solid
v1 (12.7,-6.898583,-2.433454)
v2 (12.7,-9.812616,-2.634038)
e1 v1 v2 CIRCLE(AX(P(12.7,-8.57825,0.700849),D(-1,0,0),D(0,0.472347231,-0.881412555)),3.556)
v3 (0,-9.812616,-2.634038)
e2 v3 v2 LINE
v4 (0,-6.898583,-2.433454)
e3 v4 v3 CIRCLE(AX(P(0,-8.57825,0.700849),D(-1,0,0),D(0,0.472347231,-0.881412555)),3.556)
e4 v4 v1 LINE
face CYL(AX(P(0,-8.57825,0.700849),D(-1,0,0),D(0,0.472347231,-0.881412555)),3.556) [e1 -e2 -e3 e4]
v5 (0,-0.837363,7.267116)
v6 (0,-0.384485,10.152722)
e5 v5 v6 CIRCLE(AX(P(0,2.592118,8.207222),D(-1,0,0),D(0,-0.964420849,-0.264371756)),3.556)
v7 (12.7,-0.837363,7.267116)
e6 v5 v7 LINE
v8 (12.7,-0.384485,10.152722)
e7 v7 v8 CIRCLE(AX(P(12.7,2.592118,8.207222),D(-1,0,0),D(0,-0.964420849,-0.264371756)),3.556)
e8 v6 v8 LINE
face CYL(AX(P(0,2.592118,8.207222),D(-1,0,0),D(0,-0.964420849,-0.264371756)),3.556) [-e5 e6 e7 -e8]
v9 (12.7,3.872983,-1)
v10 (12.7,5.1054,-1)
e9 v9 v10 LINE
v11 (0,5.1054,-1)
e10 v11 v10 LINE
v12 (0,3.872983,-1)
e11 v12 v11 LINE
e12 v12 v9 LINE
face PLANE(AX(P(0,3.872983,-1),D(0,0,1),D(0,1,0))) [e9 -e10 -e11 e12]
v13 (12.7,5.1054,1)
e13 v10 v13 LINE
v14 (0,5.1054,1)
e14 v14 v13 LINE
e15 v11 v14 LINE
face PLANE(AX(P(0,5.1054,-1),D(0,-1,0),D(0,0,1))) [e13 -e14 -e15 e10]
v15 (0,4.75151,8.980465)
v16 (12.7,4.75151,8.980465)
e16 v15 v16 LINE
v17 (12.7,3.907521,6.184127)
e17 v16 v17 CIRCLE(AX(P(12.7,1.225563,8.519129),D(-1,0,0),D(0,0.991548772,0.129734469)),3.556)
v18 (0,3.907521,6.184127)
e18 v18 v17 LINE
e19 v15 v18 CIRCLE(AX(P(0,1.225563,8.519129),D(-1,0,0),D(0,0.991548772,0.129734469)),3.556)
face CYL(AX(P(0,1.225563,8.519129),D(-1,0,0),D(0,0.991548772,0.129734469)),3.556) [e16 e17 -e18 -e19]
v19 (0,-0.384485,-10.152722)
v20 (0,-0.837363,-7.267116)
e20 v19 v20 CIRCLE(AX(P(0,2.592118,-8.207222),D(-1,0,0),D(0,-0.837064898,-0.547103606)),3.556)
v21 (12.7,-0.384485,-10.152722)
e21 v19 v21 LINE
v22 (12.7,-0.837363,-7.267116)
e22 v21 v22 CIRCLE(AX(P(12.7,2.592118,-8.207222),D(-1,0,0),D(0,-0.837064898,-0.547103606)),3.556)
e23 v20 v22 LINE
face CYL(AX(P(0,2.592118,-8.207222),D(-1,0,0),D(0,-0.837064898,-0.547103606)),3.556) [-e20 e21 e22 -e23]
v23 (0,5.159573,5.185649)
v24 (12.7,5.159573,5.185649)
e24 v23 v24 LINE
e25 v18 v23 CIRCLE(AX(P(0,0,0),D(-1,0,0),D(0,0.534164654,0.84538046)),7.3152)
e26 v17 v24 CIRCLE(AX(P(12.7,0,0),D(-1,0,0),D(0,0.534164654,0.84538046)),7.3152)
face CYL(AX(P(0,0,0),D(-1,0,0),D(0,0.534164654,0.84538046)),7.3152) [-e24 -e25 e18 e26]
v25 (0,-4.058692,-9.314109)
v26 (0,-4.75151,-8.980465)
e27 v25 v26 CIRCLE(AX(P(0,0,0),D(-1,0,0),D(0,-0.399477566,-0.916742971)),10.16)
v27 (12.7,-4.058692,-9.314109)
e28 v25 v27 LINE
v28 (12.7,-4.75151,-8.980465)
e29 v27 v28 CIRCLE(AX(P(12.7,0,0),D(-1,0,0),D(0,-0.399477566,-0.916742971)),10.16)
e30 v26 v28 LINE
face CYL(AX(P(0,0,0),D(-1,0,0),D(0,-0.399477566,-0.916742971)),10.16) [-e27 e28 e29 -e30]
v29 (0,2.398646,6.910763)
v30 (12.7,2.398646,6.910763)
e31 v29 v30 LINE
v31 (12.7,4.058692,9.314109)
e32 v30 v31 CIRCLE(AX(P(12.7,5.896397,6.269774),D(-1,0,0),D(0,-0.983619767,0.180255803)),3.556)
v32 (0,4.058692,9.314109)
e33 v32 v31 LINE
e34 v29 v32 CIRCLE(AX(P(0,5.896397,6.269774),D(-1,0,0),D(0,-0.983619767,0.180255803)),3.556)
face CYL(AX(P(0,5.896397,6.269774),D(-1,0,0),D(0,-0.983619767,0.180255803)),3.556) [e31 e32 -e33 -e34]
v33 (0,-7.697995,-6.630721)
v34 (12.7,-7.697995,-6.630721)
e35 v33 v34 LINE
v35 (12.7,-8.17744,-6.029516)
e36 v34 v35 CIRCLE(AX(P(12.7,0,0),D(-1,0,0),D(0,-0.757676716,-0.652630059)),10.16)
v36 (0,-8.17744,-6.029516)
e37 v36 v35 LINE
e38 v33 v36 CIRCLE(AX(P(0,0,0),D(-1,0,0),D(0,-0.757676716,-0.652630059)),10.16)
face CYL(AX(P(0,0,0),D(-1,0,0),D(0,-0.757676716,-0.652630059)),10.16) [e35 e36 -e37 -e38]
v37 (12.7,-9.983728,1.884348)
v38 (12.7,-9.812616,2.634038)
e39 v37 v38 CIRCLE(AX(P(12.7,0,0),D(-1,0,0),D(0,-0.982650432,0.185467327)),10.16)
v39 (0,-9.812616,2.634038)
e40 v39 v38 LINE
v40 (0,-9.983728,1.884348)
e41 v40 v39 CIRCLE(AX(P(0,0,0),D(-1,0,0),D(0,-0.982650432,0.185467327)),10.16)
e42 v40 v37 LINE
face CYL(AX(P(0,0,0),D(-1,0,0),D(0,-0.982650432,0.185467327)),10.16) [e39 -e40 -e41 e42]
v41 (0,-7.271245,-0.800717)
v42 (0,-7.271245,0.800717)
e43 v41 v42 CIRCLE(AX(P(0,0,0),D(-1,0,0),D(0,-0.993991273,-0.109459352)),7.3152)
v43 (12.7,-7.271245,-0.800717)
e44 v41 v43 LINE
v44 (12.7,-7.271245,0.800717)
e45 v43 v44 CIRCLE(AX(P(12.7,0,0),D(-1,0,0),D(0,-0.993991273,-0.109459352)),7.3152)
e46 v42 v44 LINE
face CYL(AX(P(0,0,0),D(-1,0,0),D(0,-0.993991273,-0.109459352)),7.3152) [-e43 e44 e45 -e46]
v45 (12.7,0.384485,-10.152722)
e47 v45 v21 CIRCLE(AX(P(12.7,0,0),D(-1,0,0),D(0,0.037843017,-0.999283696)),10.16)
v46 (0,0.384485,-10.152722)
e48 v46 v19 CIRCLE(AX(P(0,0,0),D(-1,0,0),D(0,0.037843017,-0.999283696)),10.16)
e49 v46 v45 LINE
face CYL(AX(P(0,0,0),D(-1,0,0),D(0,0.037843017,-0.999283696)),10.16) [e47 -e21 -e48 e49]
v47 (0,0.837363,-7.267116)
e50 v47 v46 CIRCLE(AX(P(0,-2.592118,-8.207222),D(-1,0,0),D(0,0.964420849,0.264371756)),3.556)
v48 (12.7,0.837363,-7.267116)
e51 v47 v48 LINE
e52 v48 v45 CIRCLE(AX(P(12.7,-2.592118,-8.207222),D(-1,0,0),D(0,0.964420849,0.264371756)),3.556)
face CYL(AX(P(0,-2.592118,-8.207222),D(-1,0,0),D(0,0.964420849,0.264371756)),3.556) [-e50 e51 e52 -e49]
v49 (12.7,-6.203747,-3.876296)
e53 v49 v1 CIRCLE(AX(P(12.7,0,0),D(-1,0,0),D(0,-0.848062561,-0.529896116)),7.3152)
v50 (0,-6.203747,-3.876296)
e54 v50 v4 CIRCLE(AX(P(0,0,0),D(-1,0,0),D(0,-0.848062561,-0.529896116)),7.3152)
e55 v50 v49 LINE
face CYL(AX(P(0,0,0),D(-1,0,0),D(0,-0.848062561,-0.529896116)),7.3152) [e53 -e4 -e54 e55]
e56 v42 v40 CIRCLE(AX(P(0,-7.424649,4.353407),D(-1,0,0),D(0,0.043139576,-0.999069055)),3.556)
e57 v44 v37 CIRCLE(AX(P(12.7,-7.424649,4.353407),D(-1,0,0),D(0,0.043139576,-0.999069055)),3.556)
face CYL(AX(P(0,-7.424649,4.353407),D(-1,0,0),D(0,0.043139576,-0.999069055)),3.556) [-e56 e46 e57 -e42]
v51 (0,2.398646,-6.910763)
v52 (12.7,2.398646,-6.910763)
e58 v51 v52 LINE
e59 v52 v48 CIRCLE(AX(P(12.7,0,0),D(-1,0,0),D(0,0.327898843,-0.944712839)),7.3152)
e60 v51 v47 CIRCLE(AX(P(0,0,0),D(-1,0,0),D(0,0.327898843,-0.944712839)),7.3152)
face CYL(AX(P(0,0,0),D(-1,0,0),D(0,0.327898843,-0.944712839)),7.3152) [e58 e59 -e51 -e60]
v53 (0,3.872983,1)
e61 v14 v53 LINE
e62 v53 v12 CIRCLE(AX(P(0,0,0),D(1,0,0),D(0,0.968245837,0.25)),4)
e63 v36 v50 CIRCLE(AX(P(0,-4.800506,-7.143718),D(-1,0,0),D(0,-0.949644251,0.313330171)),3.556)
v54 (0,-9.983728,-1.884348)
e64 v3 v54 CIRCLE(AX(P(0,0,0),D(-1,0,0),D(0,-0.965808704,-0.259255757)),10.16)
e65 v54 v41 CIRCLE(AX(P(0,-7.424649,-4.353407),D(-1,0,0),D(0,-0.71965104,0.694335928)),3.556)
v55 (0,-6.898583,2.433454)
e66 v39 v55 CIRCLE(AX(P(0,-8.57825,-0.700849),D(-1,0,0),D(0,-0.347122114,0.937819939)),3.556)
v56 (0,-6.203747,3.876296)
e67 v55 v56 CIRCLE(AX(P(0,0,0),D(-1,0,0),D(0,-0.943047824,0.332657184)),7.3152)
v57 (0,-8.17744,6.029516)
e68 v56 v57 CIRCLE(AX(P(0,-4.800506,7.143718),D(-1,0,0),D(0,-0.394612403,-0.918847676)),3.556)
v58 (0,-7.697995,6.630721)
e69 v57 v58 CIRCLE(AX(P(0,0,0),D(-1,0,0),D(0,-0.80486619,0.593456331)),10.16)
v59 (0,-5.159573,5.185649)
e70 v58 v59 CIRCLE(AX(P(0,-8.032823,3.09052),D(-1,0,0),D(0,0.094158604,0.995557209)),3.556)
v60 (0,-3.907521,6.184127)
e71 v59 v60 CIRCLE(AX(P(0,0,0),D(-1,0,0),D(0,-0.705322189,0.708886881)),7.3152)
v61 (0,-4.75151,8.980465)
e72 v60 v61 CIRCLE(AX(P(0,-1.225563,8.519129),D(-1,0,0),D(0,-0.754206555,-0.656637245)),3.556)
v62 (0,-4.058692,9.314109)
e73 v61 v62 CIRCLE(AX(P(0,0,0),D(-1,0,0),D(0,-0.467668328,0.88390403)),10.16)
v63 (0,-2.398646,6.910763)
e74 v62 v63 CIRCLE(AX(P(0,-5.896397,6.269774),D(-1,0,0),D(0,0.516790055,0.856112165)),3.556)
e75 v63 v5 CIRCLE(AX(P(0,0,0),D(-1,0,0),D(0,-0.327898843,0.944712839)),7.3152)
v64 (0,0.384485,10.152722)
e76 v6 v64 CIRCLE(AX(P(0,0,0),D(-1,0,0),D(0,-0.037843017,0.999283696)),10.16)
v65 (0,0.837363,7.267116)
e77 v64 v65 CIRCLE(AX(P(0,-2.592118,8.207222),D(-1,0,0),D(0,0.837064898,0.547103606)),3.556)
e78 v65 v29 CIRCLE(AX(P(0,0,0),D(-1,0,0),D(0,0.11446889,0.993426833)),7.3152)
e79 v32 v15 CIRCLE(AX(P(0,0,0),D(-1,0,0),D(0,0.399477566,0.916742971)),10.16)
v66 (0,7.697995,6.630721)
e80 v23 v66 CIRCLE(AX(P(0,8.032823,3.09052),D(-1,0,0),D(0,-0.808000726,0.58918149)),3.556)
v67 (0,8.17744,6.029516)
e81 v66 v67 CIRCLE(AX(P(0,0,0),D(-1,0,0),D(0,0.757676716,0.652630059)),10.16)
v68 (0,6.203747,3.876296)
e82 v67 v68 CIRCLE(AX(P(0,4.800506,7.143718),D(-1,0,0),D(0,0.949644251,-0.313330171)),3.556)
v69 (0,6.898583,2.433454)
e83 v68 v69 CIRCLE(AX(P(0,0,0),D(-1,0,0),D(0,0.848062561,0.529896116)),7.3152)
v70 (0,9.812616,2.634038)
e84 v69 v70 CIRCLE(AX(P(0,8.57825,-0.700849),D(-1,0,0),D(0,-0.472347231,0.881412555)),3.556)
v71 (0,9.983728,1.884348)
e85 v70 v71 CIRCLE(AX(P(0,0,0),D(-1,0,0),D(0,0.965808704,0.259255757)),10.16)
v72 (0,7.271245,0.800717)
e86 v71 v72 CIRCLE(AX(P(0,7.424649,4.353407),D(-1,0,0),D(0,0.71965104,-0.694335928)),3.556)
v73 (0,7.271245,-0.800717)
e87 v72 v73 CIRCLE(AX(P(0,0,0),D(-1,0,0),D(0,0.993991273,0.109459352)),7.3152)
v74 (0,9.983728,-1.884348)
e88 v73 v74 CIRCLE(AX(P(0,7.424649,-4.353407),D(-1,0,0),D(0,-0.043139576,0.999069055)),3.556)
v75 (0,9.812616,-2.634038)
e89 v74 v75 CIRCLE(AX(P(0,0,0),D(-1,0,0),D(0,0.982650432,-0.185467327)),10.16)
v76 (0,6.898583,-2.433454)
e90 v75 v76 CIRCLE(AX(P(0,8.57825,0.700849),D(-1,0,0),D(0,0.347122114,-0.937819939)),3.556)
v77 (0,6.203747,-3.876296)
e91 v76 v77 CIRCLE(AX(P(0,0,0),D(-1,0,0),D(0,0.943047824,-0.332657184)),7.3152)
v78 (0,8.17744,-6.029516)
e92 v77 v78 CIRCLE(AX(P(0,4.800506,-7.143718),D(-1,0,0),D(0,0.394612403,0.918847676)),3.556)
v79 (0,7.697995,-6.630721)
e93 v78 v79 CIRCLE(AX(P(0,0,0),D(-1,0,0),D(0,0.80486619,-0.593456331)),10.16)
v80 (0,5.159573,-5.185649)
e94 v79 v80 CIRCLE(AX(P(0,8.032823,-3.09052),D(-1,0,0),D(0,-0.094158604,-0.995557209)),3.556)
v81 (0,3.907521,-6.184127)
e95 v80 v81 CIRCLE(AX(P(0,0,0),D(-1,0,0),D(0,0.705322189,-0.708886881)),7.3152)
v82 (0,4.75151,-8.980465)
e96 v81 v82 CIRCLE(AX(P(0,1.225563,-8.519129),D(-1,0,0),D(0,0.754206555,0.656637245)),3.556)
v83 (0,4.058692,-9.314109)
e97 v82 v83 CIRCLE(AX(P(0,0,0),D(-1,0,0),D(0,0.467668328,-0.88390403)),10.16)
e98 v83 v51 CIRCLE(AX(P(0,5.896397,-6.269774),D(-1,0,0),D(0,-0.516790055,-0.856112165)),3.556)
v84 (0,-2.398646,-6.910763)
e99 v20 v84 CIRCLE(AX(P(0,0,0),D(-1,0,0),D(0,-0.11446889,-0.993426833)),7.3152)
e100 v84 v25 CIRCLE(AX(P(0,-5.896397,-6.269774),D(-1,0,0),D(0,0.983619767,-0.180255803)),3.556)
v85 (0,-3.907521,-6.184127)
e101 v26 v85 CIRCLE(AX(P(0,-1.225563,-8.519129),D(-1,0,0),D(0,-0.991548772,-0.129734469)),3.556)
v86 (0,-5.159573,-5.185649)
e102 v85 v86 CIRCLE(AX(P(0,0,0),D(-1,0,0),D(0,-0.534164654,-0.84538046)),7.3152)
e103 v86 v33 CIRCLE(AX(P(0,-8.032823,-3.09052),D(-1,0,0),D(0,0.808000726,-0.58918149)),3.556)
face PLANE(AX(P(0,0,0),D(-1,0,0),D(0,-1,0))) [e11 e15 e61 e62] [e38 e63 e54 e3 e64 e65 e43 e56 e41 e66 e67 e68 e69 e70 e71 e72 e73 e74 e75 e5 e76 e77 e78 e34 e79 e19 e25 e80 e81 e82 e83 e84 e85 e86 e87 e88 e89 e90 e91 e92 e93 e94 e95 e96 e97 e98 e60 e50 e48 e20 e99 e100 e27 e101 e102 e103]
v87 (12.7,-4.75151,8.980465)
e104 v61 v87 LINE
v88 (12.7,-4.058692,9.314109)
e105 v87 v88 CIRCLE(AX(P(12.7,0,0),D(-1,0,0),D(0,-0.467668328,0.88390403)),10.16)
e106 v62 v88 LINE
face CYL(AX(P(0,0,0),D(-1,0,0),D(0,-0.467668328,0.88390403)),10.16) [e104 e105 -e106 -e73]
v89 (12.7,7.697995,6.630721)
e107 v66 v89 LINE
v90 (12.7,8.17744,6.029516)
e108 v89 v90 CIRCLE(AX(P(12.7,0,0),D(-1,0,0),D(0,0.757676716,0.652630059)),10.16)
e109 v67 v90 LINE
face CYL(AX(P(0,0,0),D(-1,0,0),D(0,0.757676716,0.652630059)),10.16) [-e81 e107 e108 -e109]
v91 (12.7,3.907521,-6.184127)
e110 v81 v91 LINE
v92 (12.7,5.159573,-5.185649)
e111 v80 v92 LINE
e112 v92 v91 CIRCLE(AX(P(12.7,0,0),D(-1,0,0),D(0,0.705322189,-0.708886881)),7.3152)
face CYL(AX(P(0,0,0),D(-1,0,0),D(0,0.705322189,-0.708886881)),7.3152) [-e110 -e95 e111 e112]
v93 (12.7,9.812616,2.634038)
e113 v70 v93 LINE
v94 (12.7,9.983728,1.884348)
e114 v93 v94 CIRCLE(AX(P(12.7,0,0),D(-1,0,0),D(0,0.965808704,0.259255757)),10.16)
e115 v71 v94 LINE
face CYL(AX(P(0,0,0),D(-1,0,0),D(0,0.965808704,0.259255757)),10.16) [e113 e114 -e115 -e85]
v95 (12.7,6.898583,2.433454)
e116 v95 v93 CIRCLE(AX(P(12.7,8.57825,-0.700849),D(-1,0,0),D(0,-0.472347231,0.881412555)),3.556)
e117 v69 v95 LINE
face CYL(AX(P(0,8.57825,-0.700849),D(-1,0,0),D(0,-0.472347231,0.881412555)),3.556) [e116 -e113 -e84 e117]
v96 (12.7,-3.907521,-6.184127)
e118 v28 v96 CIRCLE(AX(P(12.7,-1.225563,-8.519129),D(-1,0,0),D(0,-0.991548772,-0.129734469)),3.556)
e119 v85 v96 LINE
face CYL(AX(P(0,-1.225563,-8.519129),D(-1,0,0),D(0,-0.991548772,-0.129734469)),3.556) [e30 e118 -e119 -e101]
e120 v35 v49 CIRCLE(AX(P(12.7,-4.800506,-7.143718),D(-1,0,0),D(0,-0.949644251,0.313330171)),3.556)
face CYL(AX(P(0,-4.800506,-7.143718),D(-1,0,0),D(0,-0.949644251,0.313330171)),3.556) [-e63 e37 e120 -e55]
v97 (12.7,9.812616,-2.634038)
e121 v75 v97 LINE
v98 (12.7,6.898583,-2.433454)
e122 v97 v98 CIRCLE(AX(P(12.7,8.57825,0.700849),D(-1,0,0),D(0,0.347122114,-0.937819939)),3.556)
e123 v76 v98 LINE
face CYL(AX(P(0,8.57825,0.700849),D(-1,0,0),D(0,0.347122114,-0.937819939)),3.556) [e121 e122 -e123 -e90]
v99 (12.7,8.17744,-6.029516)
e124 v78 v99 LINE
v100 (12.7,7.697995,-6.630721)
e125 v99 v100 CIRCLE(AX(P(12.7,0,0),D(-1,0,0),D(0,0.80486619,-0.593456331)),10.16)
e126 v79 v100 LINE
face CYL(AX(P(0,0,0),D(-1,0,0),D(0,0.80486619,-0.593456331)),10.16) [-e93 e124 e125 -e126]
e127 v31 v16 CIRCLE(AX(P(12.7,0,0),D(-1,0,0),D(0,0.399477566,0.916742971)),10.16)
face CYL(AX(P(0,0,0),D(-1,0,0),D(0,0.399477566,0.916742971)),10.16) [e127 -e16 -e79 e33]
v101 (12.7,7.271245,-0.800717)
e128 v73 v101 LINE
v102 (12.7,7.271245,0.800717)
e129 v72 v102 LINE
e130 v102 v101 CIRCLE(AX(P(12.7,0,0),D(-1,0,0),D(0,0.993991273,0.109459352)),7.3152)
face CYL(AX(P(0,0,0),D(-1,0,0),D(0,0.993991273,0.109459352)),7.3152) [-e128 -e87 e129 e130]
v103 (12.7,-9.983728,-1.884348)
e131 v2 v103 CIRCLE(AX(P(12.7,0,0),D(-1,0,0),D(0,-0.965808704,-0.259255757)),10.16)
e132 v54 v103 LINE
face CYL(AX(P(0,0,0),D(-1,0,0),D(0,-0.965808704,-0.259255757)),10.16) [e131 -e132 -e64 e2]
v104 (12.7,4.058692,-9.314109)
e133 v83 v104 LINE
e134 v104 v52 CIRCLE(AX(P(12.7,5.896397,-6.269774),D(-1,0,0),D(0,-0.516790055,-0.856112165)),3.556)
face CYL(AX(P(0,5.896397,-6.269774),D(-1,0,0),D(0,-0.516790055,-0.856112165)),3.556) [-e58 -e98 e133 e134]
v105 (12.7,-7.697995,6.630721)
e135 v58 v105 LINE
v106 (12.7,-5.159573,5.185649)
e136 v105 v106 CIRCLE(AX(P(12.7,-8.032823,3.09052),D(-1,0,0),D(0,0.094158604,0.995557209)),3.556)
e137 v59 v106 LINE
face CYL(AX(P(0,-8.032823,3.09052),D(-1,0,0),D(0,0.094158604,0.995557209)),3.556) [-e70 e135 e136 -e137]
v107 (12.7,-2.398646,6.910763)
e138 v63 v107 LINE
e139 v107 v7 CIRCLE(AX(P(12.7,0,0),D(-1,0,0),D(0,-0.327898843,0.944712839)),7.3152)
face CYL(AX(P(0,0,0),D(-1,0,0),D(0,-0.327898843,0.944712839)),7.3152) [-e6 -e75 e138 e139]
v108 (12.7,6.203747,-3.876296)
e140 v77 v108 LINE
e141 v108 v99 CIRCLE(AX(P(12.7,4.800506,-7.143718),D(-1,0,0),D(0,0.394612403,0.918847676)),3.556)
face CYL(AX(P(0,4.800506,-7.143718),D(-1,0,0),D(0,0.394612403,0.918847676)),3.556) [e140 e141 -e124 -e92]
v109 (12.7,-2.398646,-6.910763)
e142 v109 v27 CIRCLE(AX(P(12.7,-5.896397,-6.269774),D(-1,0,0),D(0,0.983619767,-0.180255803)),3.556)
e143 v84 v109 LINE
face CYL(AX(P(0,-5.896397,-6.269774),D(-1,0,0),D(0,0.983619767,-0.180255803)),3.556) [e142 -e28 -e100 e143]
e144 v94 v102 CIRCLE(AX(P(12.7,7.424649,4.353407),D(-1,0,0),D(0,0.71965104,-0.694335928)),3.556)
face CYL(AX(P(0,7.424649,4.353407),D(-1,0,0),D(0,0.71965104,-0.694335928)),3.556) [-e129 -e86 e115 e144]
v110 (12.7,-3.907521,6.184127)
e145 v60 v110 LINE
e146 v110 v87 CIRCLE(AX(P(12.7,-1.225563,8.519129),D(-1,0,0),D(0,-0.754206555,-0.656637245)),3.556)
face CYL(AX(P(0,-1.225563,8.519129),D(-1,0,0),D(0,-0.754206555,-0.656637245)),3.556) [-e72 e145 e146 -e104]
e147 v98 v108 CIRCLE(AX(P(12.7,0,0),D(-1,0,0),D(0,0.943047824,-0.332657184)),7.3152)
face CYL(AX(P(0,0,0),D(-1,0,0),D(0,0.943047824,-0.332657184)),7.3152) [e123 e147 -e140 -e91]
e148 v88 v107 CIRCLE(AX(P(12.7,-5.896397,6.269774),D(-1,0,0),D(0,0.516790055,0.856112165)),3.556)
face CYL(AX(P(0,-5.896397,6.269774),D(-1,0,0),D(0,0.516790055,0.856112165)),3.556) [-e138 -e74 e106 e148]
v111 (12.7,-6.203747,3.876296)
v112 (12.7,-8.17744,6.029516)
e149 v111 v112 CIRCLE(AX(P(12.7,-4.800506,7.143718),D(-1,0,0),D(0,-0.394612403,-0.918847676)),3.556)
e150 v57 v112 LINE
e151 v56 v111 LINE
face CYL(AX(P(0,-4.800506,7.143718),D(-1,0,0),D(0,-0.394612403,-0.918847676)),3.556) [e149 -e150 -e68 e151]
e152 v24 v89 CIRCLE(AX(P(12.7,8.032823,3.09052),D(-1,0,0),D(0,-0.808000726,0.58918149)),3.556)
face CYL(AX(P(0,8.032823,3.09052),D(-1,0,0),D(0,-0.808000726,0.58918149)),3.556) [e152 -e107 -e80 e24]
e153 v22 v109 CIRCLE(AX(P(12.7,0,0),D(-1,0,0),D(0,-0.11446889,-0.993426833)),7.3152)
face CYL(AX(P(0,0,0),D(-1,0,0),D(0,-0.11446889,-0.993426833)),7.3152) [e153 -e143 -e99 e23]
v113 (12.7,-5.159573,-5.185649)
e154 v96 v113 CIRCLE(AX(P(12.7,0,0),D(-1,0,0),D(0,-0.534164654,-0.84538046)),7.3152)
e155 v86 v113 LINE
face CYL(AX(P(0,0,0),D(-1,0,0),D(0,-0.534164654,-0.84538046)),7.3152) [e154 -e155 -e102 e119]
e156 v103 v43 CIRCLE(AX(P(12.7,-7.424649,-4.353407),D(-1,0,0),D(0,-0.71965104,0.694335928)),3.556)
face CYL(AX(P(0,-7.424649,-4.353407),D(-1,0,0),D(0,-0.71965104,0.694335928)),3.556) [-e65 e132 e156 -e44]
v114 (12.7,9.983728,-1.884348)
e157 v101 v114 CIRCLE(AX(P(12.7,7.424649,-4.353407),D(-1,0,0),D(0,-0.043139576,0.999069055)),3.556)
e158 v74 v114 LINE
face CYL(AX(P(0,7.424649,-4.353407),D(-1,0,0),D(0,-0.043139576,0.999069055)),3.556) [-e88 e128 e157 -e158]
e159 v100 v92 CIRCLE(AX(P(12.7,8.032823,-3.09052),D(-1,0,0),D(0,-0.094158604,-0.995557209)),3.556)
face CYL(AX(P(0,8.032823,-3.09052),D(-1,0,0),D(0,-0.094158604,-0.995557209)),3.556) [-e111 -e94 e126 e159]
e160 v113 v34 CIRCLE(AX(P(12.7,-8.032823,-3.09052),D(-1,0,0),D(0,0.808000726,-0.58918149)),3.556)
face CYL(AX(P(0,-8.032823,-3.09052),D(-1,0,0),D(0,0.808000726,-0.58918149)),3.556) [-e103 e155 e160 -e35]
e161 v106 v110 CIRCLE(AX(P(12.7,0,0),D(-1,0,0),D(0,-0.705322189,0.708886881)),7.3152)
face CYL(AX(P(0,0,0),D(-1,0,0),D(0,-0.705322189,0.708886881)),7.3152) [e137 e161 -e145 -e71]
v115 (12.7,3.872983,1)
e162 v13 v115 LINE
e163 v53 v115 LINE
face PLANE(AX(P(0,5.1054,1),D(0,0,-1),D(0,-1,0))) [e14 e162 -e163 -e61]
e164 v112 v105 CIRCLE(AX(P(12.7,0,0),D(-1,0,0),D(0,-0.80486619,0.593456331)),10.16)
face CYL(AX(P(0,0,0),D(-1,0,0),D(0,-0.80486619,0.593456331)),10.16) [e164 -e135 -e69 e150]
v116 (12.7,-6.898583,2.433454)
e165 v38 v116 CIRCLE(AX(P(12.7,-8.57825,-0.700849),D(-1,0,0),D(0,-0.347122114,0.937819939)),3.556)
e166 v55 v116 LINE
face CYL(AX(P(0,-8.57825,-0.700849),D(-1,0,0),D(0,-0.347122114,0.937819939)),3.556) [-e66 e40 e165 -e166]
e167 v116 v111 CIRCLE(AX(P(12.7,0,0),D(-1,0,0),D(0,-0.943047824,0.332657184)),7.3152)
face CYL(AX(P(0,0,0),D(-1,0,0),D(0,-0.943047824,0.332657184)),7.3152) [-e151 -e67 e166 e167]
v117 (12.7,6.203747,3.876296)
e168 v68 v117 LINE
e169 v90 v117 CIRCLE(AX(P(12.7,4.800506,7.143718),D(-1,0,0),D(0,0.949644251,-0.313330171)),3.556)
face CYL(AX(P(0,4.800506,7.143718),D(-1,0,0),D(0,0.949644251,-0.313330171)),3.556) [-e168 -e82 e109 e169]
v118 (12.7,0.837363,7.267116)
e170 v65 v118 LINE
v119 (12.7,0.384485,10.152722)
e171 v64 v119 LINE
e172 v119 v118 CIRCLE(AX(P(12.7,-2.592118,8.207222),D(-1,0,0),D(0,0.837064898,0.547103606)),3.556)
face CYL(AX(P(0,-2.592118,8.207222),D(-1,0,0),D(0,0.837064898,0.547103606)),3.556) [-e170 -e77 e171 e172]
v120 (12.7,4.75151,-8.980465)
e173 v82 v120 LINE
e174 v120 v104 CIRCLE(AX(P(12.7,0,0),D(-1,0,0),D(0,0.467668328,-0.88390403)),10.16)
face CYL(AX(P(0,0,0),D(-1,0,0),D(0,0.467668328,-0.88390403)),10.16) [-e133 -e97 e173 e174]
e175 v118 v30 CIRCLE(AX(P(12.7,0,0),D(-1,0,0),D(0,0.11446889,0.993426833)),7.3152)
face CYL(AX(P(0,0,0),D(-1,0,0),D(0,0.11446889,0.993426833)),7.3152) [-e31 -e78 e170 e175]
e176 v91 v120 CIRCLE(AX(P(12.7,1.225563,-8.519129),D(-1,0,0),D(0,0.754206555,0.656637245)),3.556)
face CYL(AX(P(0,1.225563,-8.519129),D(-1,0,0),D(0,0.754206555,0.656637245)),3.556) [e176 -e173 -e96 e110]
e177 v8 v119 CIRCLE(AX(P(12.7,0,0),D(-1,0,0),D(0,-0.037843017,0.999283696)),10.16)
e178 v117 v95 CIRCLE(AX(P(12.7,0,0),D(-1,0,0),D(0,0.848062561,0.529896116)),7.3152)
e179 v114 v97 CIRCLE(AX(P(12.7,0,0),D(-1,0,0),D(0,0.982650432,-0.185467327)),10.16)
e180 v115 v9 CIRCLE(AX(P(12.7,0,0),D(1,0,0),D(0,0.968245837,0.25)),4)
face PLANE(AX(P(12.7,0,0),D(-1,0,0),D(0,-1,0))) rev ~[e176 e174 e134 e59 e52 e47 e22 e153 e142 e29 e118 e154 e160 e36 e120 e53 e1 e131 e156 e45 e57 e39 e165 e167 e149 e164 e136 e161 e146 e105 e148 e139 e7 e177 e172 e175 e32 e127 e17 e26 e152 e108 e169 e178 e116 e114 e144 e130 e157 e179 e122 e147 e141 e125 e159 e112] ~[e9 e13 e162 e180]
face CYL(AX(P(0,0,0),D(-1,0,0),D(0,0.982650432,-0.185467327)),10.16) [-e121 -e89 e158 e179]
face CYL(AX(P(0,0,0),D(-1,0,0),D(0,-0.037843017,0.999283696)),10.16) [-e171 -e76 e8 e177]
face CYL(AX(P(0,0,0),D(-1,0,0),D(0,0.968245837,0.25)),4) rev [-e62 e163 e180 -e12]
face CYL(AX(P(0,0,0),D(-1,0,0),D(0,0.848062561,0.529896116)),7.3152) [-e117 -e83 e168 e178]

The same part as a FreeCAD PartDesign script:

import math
import FreeCAD as App
import Part
import Sketcher

V = App.Vector
Q = App.Units.Quantity

doc = App.newDocument("Part")
body = doc.addObject("PartDesign::Body", "Body")

sketch1 = doc.addObject("Sketcher::SketchObject", "Sketch")
body.addObject(sketch1)
sketch1.AttachmentSupport = (doc.YZ_Plane, [""])
sketch1.MapMode = "FlatFace"
sketch1.addGeometry(Part.ArcOfCircle(Part.Circle(V(0, 0, 0), V(0, 0, 1), 10.2), math.radians(-40.74), math.radians(-36.4)), False)
sketch1.addGeometry(Part.ArcOfCircle(Part.Circle(V(8, -3.1, 0), V(0, 0, 1), 3.6), math.radians(-144), math.radians(-95)), False)
sketch1.addGeometry(Part.ArcOfCircle(Part.Circle(V(0, 0, 0), V(0, 0, 1), 7.3), math.radians(-57.71), math.radians(-45.14)), False)
sketch1.addGeometry(Part.ArcOfCircle(Part.Circle(V(1.2, -8.5, 0), V(0, 0, 1), 3.6), math.radians(-7), math.radians(41)), False)
sketch1.addGeometry(Part.ArcOfCircle(Part.Circle(V(0, 0, 0), V(0, 0, 1), 10.2), math.radians(-66.45), math.radians(-62.12)), False)
sketch1.addGeometry(Part.ArcOfCircle(Part.Circle(V(5.9, -6.3, 0), V(0, 0, 1), 3.6), math.radians(-170), math.radians(-121)), False)
sketch1.addGeometry(Part.ArcOfCircle(Part.Circle(V(0, 0, 0), V(0, 0, 1), 7.3), math.radians(-83.43), math.radians(-70.86)), False)
sketch1.addGeometry(Part.ArcOfCircle(Part.Circle(V(-2.6, -8.2, 0), V(0, 0, 1), 3.6), math.radians(-33), math.radians(15)), False)
sketch1.addGeometry(Part.ArcOfCircle(Part.Circle(V(0, 0, 0), V(0, 0, 1), 10.2), math.radians(-92.17), math.radians(-87.83)), False)
sketch1.addGeometry(Part.ArcOfCircle(Part.Circle(V(2.6, -8.2, 0), V(0, 0, 1), 3.6), math.radians(165), math.radians(213)), False)
sketch1.addGeometry(Part.ArcOfCircle(Part.Circle(V(0, 0, 0), V(0, 0, 1), 7.3), math.radians(-109.14), math.radians(-96.57)), False)
sketch1.addGeometry(Part.ArcOfCircle(Part.Circle(V(-5.9, -6.3, 0), V(0, 0, 1), 3.6), math.radians(-59), math.radians(-10)), False)
sketch1.addGeometry(Part.ArcOfCircle(Part.Circle(V(0, 0, 0), V(0, 0, 1), 10.2), math.radians(-117.88), math.radians(-113.55)), False)
sketch1.addGeometry(Part.ArcOfCircle(Part.Circle(V(-1.2, -8.5, 0), V(0, 0, 1), 3.6), math.radians(139), math.radians(187)), False)
sketch1.addGeometry(Part.ArcOfCircle(Part.Circle(V(0, 0, 0), V(0, 0, 1), 7.3), math.radians(-134.86), math.radians(-122.29)), False)
sketch1.addGeometry(Part.ArcOfCircle(Part.Circle(V(-8, -3.1, 0), V(0, 0, 1), 3.6), math.radians(-85), math.radians(-36)), False)
sketch1.addGeometry(Part.ArcOfCircle(Part.Circle(V(0, 0, 0), V(0, 0, 1), 10.2), math.radians(-143.6), math.radians(-139.26)), False)
sketch1.addGeometry(Part.ArcOfCircle(Part.Circle(V(-4.8, -7.1, 0), V(0, 0, 1), 3.6), math.radians(113), math.radians(162)), False)
sketch1.addGeometry(Part.ArcOfCircle(Part.Circle(V(0, 0, 0), V(0, 0, 1), 7.3), math.radians(-160.57), math.radians(-148)), False)
sketch1.addGeometry(Part.ArcOfCircle(Part.Circle(V(-8.6, 0.7, 0), V(0, 0, 1), 3.6), math.radians(-110), math.radians(-62)), False)
sketch1.addGeometry(Part.ArcOfCircle(Part.Circle(V(0, 0, 0), V(0, 0, 1), 10.2), math.radians(-169.31), math.radians(-164.97)), False)
sketch1.addGeometry(Part.ArcOfCircle(Part.Circle(V(-7.4, -4.4, 0), V(0, 0, 1), 3.6), math.radians(88), math.radians(136)), False)
sketch1.addGeometry(Part.ArcOfCircle(Part.Circle(V(0, 0, 0), V(0, 0, 1), 7.3), math.radians(173.72), math.radians(186.28)), False)
sketch1.addGeometry(Part.ArcOfCircle(Part.Circle(V(-7.4, 4.4, 0), V(0, 0, 1), 3.6), math.radians(-136), math.radians(-88)), False)
sketch1.addGeometry(Part.ArcOfCircle(Part.Circle(V(0, 0, 0), V(0, 0, 1), 10.2), math.radians(164.97), math.radians(169.31)), False)
sketch1.addGeometry(Part.ArcOfCircle(Part.Circle(V(-8.6, -0.7, 0), V(0, 0, 1), 3.6), math.radians(62), math.radians(110)), False)
sketch1.addGeometry(Part.ArcOfCircle(Part.Circle(V(0, 0, 0), V(0, 0, 1), 7.3), math.radians(148), math.radians(160.57)), False)
sketch1.addGeometry(Part.ArcOfCircle(Part.Circle(V(-4.8, 7.1, 0), V(0, 0, 1), 3.6), math.radians(-162), math.radians(-113)), False)
sketch1.addGeometry(Part.ArcOfCircle(Part.Circle(V(0, 0, 0), V(0, 0, 1), 10.2), math.radians(139.26), math.radians(143.6)), False)
sketch1.addGeometry(Part.ArcOfCircle(Part.Circle(V(-8, 3.1, 0), V(0, 0, 1), 3.6), math.radians(36), math.radians(85)), False)
sketch1.addGeometry(Part.ArcOfCircle(Part.Circle(V(0, 0, 0), V(0, 0, 1), 7.3), math.radians(122.29), math.radians(134.86)), False)
sketch1.addGeometry(Part.ArcOfCircle(Part.Circle(V(-1.2, 8.5, 0), V(0, 0, 1), 3.6), math.radians(173), math.radians(221)), False)
sketch1.addGeometry(Part.ArcOfCircle(Part.Circle(V(0, 0, 0), V(0, 0, 1), 10.2), math.radians(113.55), math.radians(117.88)), False)
sketch1.addGeometry(Part.ArcOfCircle(Part.Circle(V(-5.9, 6.3, 0), V(0, 0, 1), 3.6), math.radians(10), math.radians(59)), False)
sketch1.addGeometry(Part.ArcOfCircle(Part.Circle(V(0, 0, 0), V(0, 0, 1), 7.3), math.radians(96.57), math.radians(109.14)), False)
sketch1.addGeometry(Part.ArcOfCircle(Part.Circle(V(2.6, 8.2, 0), V(0, 0, 1), 3.6), math.radians(147), math.radians(195)), False)
sketch1.addGeometry(Part.ArcOfCircle(Part.Circle(V(0, 0, 0), V(0, 0, 1), 10.2), math.radians(87.83), math.radians(92.17)), False)
sketch1.addGeometry(Part.ArcOfCircle(Part.Circle(V(-2.6, 8.2, 0), V(0, 0, 1), 3.6), math.radians(-15), math.radians(33)), False)
sketch1.addGeometry(Part.ArcOfCircle(Part.Circle(V(0, 0, 0), V(0, 0, 1), 7.3), math.radians(70.86), math.radians(83.43)), False)
sketch1.addGeometry(Part.ArcOfCircle(Part.Circle(V(5.9, 6.3, 0), V(0, 0, 1), 3.6), math.radians(121), math.radians(170)), False)
sketch1.addGeometry(Part.ArcOfCircle(Part.Circle(V(0, 0, 0), V(0, 0, 1), 10.2), math.radians(62.12), math.radians(66.45)), False)
sketch1.addGeometry(Part.ArcOfCircle(Part.Circle(V(1.2, 8.5, 0), V(0, 0, 1), 3.6), math.radians(-41), math.radians(7)), False)
sketch1.addGeometry(Part.ArcOfCircle(Part.Circle(V(0, 0, 0), V(0, 0, 1), 7.3), math.radians(45.14), math.radians(57.71)), False)
sketch1.addGeometry(Part.ArcOfCircle(Part.Circle(V(8, 3.1, 0), V(0, 0, 1), 3.6), math.radians(95), math.radians(144)), False)
sketch1.addGeometry(Part.ArcOfCircle(Part.Circle(V(0, 0, 0), V(0, 0, 1), 10.2), math.radians(36.4), math.radians(40.74)), False)
sketch1.addGeometry(Part.ArcOfCircle(Part.Circle(V(4.8, 7.1, 0), V(0, 0, 1), 3.6), math.radians(-67), math.radians(-18)), False)
sketch1.addGeometry(Part.ArcOfCircle(Part.Circle(V(0, 0, 0), V(0, 0, 1), 7.3), math.radians(19.43), math.radians(32)), False)
sketch1.addGeometry(Part.ArcOfCircle(Part.Circle(V(8.6, -0.7, 0), V(0, 0, 1), 3.6), math.radians(70), math.radians(118)), False)
sketch1.addGeometry(Part.ArcOfCircle(Part.Circle(V(0, 0, 0), V(0, 0, 1), 10.2), math.radians(10.69), math.radians(15.03)), False)
sketch1.addGeometry(Part.ArcOfCircle(Part.Circle(V(7.4, 4.4, 0), V(0, 0, 1), 3.6), math.radians(-92), math.radians(-44)), False)
sketch1.addGeometry(Part.ArcOfCircle(Part.Circle(V(0, 0, 0), V(0, 0, 1), 7.3), math.radians(-6.28), math.radians(6.28)), False)
sketch1.addGeometry(Part.ArcOfCircle(Part.Circle(V(7.4, -4.4, 0), V(0, 0, 1), 3.6), math.radians(44), math.radians(92)), False)
sketch1.addGeometry(Part.ArcOfCircle(Part.Circle(V(0, 0, 0), V(0, 0, 1), 10.2), math.radians(-15.03), math.radians(-10.69)), False)
sketch1.addGeometry(Part.ArcOfCircle(Part.Circle(V(8.6, 0.7, 0), V(0, 0, 1), 3.6), math.radians(-118), math.radians(-70)), False)
sketch1.addGeometry(Part.ArcOfCircle(Part.Circle(V(0, 0, 0), V(0, 0, 1), 7.3), math.radians(-32), math.radians(-19.43)), False)
sketch1.addGeometry(Part.ArcOfCircle(Part.Circle(V(4.8, -7.1, 0), V(0, 0, 1), 3.6), math.radians(18), math.radians(67)), False)
sketch1.addGeometry(Part.LineSegment(V(5.1, -1, 0), V(5.1, 1, 0)), False)
sketch1.addGeometry(Part.LineSegment(V(5.1, 1, 0), V(3.9, 1, 0)), False)
sketch1.addGeometry(Part.ArcOfCircle(Part.Circle(V(0, 0, 0), V(0, 0, 1), 4), math.radians(14), math.radians(346)), False)
sketch1.addGeometry(Part.LineSegment(V(3.9, -1, 0), V(5.1, -1, 0)), False)
sketch1.addConstraint(Sketcher.Constraint("Coincident", 0, 1, 1, 2))
sketch1.addConstraint(Sketcher.Constraint("Coincident", 1, 1, 2, 2))
sketch1.addConstraint(Sketcher.Constraint("Coincident", 2, 1, 3, 2))
sketch1.addConstraint(Sketcher.Constraint("Coincident", 3, 1, 4, 2))
sketch1.addConstraint(Sketcher.Constraint("Coincident", 4, 1, 5, 2))
sketch1.addConstraint(Sketcher.Constraint("Coincident", 5, 1, 6, 2))
sketch1.addConstraint(Sketcher.Constraint("Coincident", 6, 1, 7, 2))
sketch1.addConstraint(Sketcher.Constraint("Coincident", 7, 1, 8, 2))
sketch1.addConstraint(Sketcher.Constraint("Coincident", 8, 1, 9, 2))
sketch1.addConstraint(Sketcher.Constraint("Coincident", 9, 1, 10, 2))
sketch1.addConstraint(Sketcher.Constraint("Coincident", 10, 1, 11, 2))
sketch1.addConstraint(Sketcher.Constraint("Coincident", 11, 1, 12, 2))
sketch1.addConstraint(Sketcher.Constraint("Coincident", 12, 1, 13, 2))
sketch1.addConstraint(Sketcher.Constraint("Coincident", 13, 1, 14, 2))
sketch1.addConstraint(Sketcher.Constraint("Coincident", 14, 1, 15, 2))
sketch1.addConstraint(Sketcher.Constraint("Coincident", 15, 1, 16, 2))
sketch1.addConstraint(Sketcher.Constraint("Coincident", 16, 1, 17, 2))
sketch1.addConstraint(Sketcher.Constraint("Coincident", 17, 1, 18, 2))
sketch1.addConstraint(Sketcher.Constraint("Coincident", 18, 1, 19, 2))
sketch1.addConstraint(Sketcher.Constraint("Coincident", 19, 1, 20, 2))
sketch1.addConstraint(Sketcher.Constraint("Coincident", 20, 1, 21, 2))
sketch1.addConstraint(Sketcher.Constraint("Coincident", 21, 1, 22, 2))
sketch1.addConstraint(Sketcher.Constraint("Coincident", 22, 1, 23, 2))
sketch1.addConstraint(Sketcher.Constraint("Coincident", 23, 1, 24, 2))
sketch1.addConstraint(Sketcher.Constraint("Coincident", 24, 1, 25, 2))
sketch1.addConstraint(Sketcher.Constraint("Coincident", 25, 1, 26, 2))
sketch1.addConstraint(Sketcher.Constraint("Coincident", 26, 1, 27, 2))
sketch1.addConstraint(Sketcher.Constraint("Coincident", 27, 1, 28, 2))
sketch1.addConstraint(Sketcher.Constraint("Coincident", 28, 1, 29, 2))
sketch1.addConstraint(Sketcher.Constraint("Coincident", 29, 1, 30, 2))
sketch1.addConstraint(Sketcher.Constraint("Coincident", 30, 1, 31, 2))
sketch1.addConstraint(Sketcher.Constraint("Coincident", 31, 1, 32, 2))
sketch1.addConstraint(Sketcher.Constraint("Coincident", 32, 1, 33, 2))
sketch1.addConstraint(Sketcher.Constraint("Coincident", 33, 1, 34, 2))
sketch1.addConstraint(Sketcher.Constraint("Coincident", 34, 1, 35, 2))
sketch1.addConstraint(Sketcher.Constraint("Coincident", 35, 1, 36, 2))
sketch1.addConstraint(Sketcher.Constraint("Coincident", 36, 1, 37, 2))
sketch1.addConstraint(Sketcher.Constraint("Coincident", 37, 1, 38, 2))
sketch1.addConstraint(Sketcher.Constraint("Coincident", 38, 1, 39, 2))
sketch1.addConstraint(Sketcher.Constraint("Coincident", 39, 1, 40, 2))
sketch1.addConstraint(Sketcher.Constraint("Coincident", 40, 1, 41, 2))
sketch1.addConstraint(Sketcher.Constraint("Coincident", 41, 1, 42, 2))
sketch1.addConstraint(Sketcher.Constraint("Coincident", 42, 1, 43, 2))
sketch1.addConstraint(Sketcher.Constraint("Coincident", 43, 1, 44, 2))
sketch1.addConstraint(Sketcher.Constraint("Coincident", 44, 1, 45, 2))
sketch1.addConstraint(Sketcher.Constraint("Coincident", 45, 1, 46, 2))
sketch1.addConstraint(Sketcher.Constraint("Coincident", 46, 1, 47, 2))
sketch1.addConstraint(Sketcher.Constraint("Coincident", 47, 1, 48, 2))
sketch1.addConstraint(Sketcher.Constraint("Coincident", 48, 1, 49, 2))
sketch1.addConstraint(Sketcher.Constraint("Coincident", 49, 1, 50, 2))
sketch1.addConstraint(Sketcher.Constraint("Coincident", 50, 1, 51, 2))
sketch1.addConstraint(Sketcher.Constraint("Coincident", 51, 1, 52, 2))
sketch1.addConstraint(Sketcher.Constraint("Coincident", 52, 1, 53, 2))
sketch1.addConstraint(Sketcher.Constraint("Coincident", 53, 1, 54, 2))
sketch1.addConstraint(Sketcher.Constraint("Coincident", 54, 1, 55, 2))
sketch1.addConstraint(Sketcher.Constraint("Coincident", 55, 1, 0, 2))
sketch1.addConstraint(Sketcher.Constraint("Coincident", 56, 2, 57, 1))
sketch1.addConstraint(Sketcher.Constraint("Coincident", 57, 2, 58, 1))
sketch1.addConstraint(Sketcher.Constraint("Coincident", 58, 2, 59, 1))
sketch1.addConstraint(Sketcher.Constraint("Coincident", 59, 2, 56, 1))
sketch1.addConstraint(Sketcher.Constraint("Vertical", 56))
sketch1.addConstraint(Sketcher.Constraint("Horizontal", 57))
sketch1.addConstraint(Sketcher.Constraint("Horizontal", 59))
sketch1.addConstraint(Sketcher.Constraint("Coincident", 0, 3, -1, 1))
sketch1.addConstraint(Sketcher.Constraint("Coincident", 2, 3, -1, 1))
sketch1.addConstraint(Sketcher.Constraint("Coincident", 4, 3, -1, 1))
sketch1.addConstraint(Sketcher.Constraint("Coincident", 6, 3, -1, 1))
sketch1.addConstraint(Sketcher.Constraint("Coincident", 8, 3, -1, 1))
sketch1.addConstraint(Sketcher.Constraint("Coincident", 10, 3, -1, 1))
sketch1.addConstraint(Sketcher.Constraint("Coincident", 12, 3, -1, 1))
sketch1.addConstraint(Sketcher.Constraint("Coincident", 14, 3, -1, 1))
sketch1.addConstraint(Sketcher.Constraint("Coincident", 16, 3, -1, 1))
sketch1.addConstraint(Sketcher.Constraint("Coincident", 18, 3, -1, 1))
sketch1.addConstraint(Sketcher.Constraint("Coincident", 20, 3, -1, 1))
sketch1.addConstraint(Sketcher.Constraint("Coincident", 22, 3, -1, 1))
sketch1.addConstraint(Sketcher.Constraint("Coincident", 24, 3, -1, 1))
sketch1.addConstraint(Sketcher.Constraint("Coincident", 26, 3, -1, 1))
sketch1.addConstraint(Sketcher.Constraint("Coincident", 28, 3, -1, 1))
sketch1.addConstraint(Sketcher.Constraint("Coincident", 30, 3, -1, 1))
sketch1.addConstraint(Sketcher.Constraint("Coincident", 32, 3, -1, 1))
sketch1.addConstraint(Sketcher.Constraint("Coincident", 34, 3, -1, 1))
sketch1.addConstraint(Sketcher.Constraint("Coincident", 36, 3, -1, 1))
sketch1.addConstraint(Sketcher.Constraint("Coincident", 38, 3, -1, 1))
sketch1.addConstraint(Sketcher.Constraint("Coincident", 40, 3, -1, 1))
sketch1.addConstraint(Sketcher.Constraint("Coincident", 42, 3, -1, 1))
sketch1.addConstraint(Sketcher.Constraint("Coincident", 44, 3, -1, 1))
sketch1.addConstraint(Sketcher.Constraint("Coincident", 46, 3, -1, 1))
sketch1.addConstraint(Sketcher.Constraint("Coincident", 48, 3, -1, 1))
sketch1.addConstraint(Sketcher.Constraint("Coincident", 50, 3, -1, 1))
sketch1.addConstraint(Sketcher.Constraint("Coincident", 52, 3, -1, 1))
sketch1.addConstraint(Sketcher.Constraint("Coincident", 54, 3, -1, 1))
sketch1.addConstraint(Sketcher.Constraint("Coincident", 58, 3, -1, 1))
sketch1.addConstraint(Sketcher.Constraint("Equal", 1, 3))
sketch1.addConstraint(Sketcher.Constraint("Equal", 0, 4))
sketch1.addConstraint(Sketcher.Constraint("Equal", 3, 5))
sketch1.addConstraint(Sketcher.Constraint("Equal", 2, 6))
sketch1.addConstraint(Sketcher.Constraint("Equal", 5, 7))
sketch1.addConstraint(Sketcher.Constraint("Equal", 4, 8))
sketch1.addConstraint(Sketcher.Constraint("Equal", 7, 9))
sketch1.addConstraint(Sketcher.Constraint("Equal", 6, 10))
sketch1.addConstraint(Sketcher.Constraint("Equal", 9, 11))
sketch1.addConstraint(Sketcher.Constraint("Equal", 8, 12))
sketch1.addConstraint(Sketcher.Constraint("Equal", 11, 13))
sketch1.addConstraint(Sketcher.Constraint("Equal", 10, 14))
sketch1.addConstraint(Sketcher.Constraint("Equal", 13, 15))
sketch1.addConstraint(Sketcher.Constraint("Equal", 12, 16))
sketch1.addConstraint(Sketcher.Constraint("Equal", 15, 17))
sketch1.addConstraint(Sketcher.Constraint("Equal", 14, 18))
sketch1.addConstraint(Sketcher.Constraint("Equal", 17, 19))
sketch1.addConstraint(Sketcher.Constraint("Equal", 16, 20))
sketch1.addConstraint(Sketcher.Constraint("Equal", 19, 21))
sketch1.addConstraint(Sketcher.Constraint("Equal", 18, 22))
sketch1.addConstraint(Sketcher.Constraint("Equal", 21, 23))
sketch1.addConstraint(Sketcher.Constraint("Equal", 20, 24))
sketch1.addConstraint(Sketcher.Constraint("Equal", 23, 25))
sketch1.addConstraint(Sketcher.Constraint("Equal", 22, 26))
sketch1.addConstraint(Sketcher.Constraint("Equal", 25, 27))
sketch1.addConstraint(Sketcher.Constraint("Equal", 24, 28))
sketch1.addConstraint(Sketcher.Constraint("Equal", 27, 29))
sketch1.addConstraint(Sketcher.Constraint("Equal", 26, 30))
sketch1.addConstraint(Sketcher.Constraint("Equal", 29, 31))
sketch1.addConstraint(Sketcher.Constraint("Equal", 28, 32))
sketch1.addConstraint(Sketcher.Constraint("Equal", 31, 33))
sketch1.addConstraint(Sketcher.Constraint("Equal", 30, 34))
sketch1.addConstraint(Sketcher.Constraint("Equal", 33, 35))
sketch1.addConstraint(Sketcher.Constraint("Equal", 32, 36))
sketch1.addConstraint(Sketcher.Constraint("Equal", 35, 37))
sketch1.addConstraint(Sketcher.Constraint("Equal", 34, 38))
sketch1.addConstraint(Sketcher.Constraint("Equal", 37, 39))
sketch1.addConstraint(Sketcher.Constraint("Equal", 36, 40))
sketch1.addConstraint(Sketcher.Constraint("Equal", 39, 41))
sketch1.addConstraint(Sketcher.Constraint("Equal", 38, 42))
sketch1.addConstraint(Sketcher.Constraint("Equal", 41, 43))
sketch1.addConstraint(Sketcher.Constraint("Equal", 40, 44))
sketch1.addConstraint(Sketcher.Constraint("Equal", 43, 45))
sketch1.addConstraint(Sketcher.Constraint("Equal", 42, 46))
sketch1.addConstraint(Sketcher.Constraint("Equal", 45, 47))
sketch1.addConstraint(Sketcher.Constraint("Equal", 44, 48))
sketch1.addConstraint(Sketcher.Constraint("Equal", 47, 49))
sketch1.addConstraint(Sketcher.Constraint("Equal", 46, 50))
sketch1.addConstraint(Sketcher.Constraint("Equal", 49, 51))
sketch1.addConstraint(Sketcher.Constraint("Equal", 48, 52))
sketch1.addConstraint(Sketcher.Constraint("Equal", 51, 53))
sketch1.addConstraint(Sketcher.Constraint("Equal", 50, 54))
sketch1.addConstraint(Sketcher.Constraint("Equal", 53, 55))
sketch1.addConstraint(Sketcher.Constraint("Symmetric", 1, 3, 29, 3, -1, 1))
sketch1.addConstraint(Sketcher.Constraint("Symmetric", 3, 3, 31, 3, -1, 1))
sketch1.addConstraint(Sketcher.Constraint("Symmetric", 5, 3, 33, 3, -1, 1))
sketch1.addConstraint(Sketcher.Constraint("Symmetric", 7, 3, 35, 3, -1, 1))
sketch1.addConstraint(Sketcher.Constraint("Symmetric", 9, 3, 37, 3, -1, 1))
sketch1.addConstraint(Sketcher.Constraint("Symmetric", 11, 3, 39, 3, -1, 1))
sketch1.addConstraint(Sketcher.Constraint("Symmetric", 13, 3, 41, 3, -1, 1))
sketch1.addConstraint(Sketcher.Constraint("Symmetric", 15, 3, 43, 3, -1, 1))
sketch1.addConstraint(Sketcher.Constraint("Symmetric", 17, 3, 45, 3, -1, 1))
sketch1.addConstraint(Sketcher.Constraint("Symmetric", 19, 3, 47, 3, -1, 1))
sketch1.addConstraint(Sketcher.Constraint("Symmetric", 21, 3, 49, 3, -1, 1))
sketch1.addConstraint(Sketcher.Constraint("Symmetric", 23, 3, 51, 3, -1, 1))
sketch1.addConstraint(Sketcher.Constraint("Symmetric", 25, 3, 53, 3, -1, 1))
sketch1.addConstraint(Sketcher.Constraint("Symmetric", 27, 3, 55, 3, -1, 1))
sketch1.addConstraint(Sketcher.Constraint("Symmetric", 7, 3, 9, 3, -2))
sketch1.addConstraint(Sketcher.Constraint("Symmetric", 5, 3, 11, 3, -2))
sketch1.addConstraint(Sketcher.Constraint("Symmetric", 3, 3, 13, 3, -2))
sketch1.addConstraint(Sketcher.Constraint("Symmetric", 1, 3, 15, 3, -2))
sketch1.addConstraint(Sketcher.Constraint("Symmetric", 27, 3, 45, 3, -2))
sketch1.addConstraint(Sketcher.Constraint("Symmetric", 25, 3, 47, 3, -2))
sketch1.addConstraint(Sketcher.Constraint("Symmetric", 23, 3, 49, 3, -2))
sketch1.addConstraint(Sketcher.Constraint("Vertical", 57, 2, 58, 2))
sketch1.addConstraint(Sketcher.Constraint("Radius", 0, Q("0.4 in")))
sketch1.addConstraint(Sketcher.Constraint("Radius", 1, Q("0.14 in")))
sketch1.addConstraint(Sketcher.Constraint("Radius", 2, Q("0.288 in")))
sketch1.addConstraint(Sketcher.Constraint("Radius", 58, Q("4 mm")))
sketch1.addConstraint(Sketcher.Constraint("DistanceX", -1, 1, 56, 2, Q("0.201 in")))
sketch1.addConstraint(Sketcher.Constraint("DistanceY", 56, 1, 56, 2, Q("2 mm")))
sketch1.addConstraint(Sketcher.Constraint("DistanceY", 1, 3, -1, 1, Q("3.09052 mm")))
sketch1.addConstraint(Sketcher.Constraint("DistanceY", 3, 3, -1, 1, Q("8.519129 mm")))
sketch1.addConstraint(Sketcher.Constraint("DistanceY", 7, 3, -1, 1, Q("8.207222 mm")))
sketch1.addConstraint(Sketcher.Constraint("DistanceY", 17, 3, -1, 1, Q("7.143718 mm")))
sketch1.addConstraint(Sketcher.Constraint("DistanceX", 19, 3, -1, 1, Q("8.57825 mm")))
sketch1.addConstraint(Sketcher.Constraint("DistanceY", -1, 1, 19, 3, Q("0.700849 mm")))
sketch1.addConstraint(Sketcher.Constraint("DistanceX", 21, 3, -1, 1, Q("7.424649 mm")))
sketch1.addConstraint(Sketcher.Constraint("DistanceY", 0, 1, -1, 1, Q("6.630721 mm")))
sketch1.addConstraint(Sketcher.Constraint("DistanceX", -1, 1, 2, 1, Q("3.907521 mm")))
sketch1.addConstraint(Sketcher.Constraint("DistanceY", 4, 1, -1, 1, Q("9.314109 mm")))
sketch1.addConstraint(Sketcher.Constraint("DistanceX", 16, 1, -1, 1, Q("8.17744 mm")))
sketch1.addConstraint(Sketcher.Constraint("DistanceX", 20, 1, -1, 1, Q("9.983728 mm")))
sketch1.addConstraint(Sketcher.Constraint("DistanceX", -1, 1, 5, 3, Q("5.896397 mm")))
sketch1.addConstraint(Sketcher.Constraint("DistanceX", 7, 3, -1, 1, Q("2.592118 mm")))
pad1 = doc.addObject("PartDesign::Pad", "Pad")
body.addObject(pad1)
pad1.Profile = sketch1
pad1.Length = Q("0.5 in")

doc.recompute()
